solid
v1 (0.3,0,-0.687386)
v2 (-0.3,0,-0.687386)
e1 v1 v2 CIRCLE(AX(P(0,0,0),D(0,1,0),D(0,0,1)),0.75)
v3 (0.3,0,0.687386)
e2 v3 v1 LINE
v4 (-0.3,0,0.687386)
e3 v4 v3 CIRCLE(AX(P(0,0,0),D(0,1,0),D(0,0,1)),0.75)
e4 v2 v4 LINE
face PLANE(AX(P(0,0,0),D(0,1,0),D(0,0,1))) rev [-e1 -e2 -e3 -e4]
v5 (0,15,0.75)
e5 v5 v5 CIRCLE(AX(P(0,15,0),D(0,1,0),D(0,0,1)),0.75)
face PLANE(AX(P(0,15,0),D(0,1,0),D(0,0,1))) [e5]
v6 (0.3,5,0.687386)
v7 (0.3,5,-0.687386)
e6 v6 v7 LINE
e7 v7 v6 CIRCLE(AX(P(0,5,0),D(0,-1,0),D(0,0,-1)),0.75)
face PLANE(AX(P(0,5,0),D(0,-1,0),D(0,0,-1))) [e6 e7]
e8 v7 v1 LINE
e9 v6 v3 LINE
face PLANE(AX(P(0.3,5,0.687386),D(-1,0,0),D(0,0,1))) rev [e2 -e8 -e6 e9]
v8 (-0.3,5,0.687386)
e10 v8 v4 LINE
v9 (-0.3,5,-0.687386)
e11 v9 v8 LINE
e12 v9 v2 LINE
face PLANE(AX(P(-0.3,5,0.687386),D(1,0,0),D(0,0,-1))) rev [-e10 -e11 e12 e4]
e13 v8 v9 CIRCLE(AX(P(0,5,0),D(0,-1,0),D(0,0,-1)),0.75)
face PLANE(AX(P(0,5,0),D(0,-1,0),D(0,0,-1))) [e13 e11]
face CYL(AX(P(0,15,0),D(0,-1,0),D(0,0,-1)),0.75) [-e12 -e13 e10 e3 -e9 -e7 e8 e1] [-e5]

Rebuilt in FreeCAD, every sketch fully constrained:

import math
import FreeCAD as App
import Part
import Sketcher

V = App.Vector

doc = App.newDocument("Part")
params = doc.addObject("Spreadsheet::Sheet", "Params")
for row, (alias, value) in enumerate([
    ("sketch1_diameter", "1.5 mm"),
    ("pad1_length", "15 mm"),
    ("sketch2_radius", "0.75 mm"),
    ("pocket1_length", "5 mm"),
], start=1):
    params.set(f"A{row}", alias)
    params.set(f"B{row}", "=" + value)
    params.setAlias(f"B{row}", alias)

body = doc.addObject("PartDesign::Body", "Body")

# Sketch on XZ plane
sketch1 = body.newObject("Sketcher::SketchObject", "Sketch")
sketch1.AttachmentSupport = (doc.getObject("XZ_Plane"), [""])
sketch1.MapMode = "FlatFace"
sketch1.addGeometry(Part.Circle(V(0, 0, 0), V(0, 0, 1), 0.8), False)
sketch1.addConstraint([
    Sketcher.Constraint("Coincident", 0, 3, -1, 1),
    Sketcher.Constraint("Diameter", 0, 1.5),
])
sketch1.setExpression("Constraints[1]", "Params.sketch1_diameter")
pad1 = body.newObject("PartDesign::Pad", "Pad")
pad1.Profile = sketch1
pad1.setExpression("Length", "Params.pad1_length")
pad1.Reversed = True

# Sketch on XZ plane
sketch2 = body.newObject("Sketcher::SketchObject", "Sketch001")
sketch2.AttachmentSupport = (doc.getObject("XZ_Plane"), [""])
sketch2.MapMode = "FlatFace"
sketch2.addGeometry([
    Part.LineSegment(V(-0.3, -0.7, 0), V(-0.3, 0.7, 0)),
    Part.ArcOfCircle(Part.Circle(V(0, 0, 0), V(0, 0, 1), 0.8), math.radians(114), math.radians(246)),
    Part.LineSegment(V(0.3, 0.7, 0), V(0.3, -0.7, 0)),
    Part.ArcOfCircle(Part.Circle(V(0, 0, 0), V(0, 0, 1), 0.8), math.radians(-66), math.radians(66)),
], False)
sketch2.addConstraint([
    Sketcher.Constraint("Coincident", 0, 1, 1, 2),
    Sketcher.Constraint("Coincident", 1, 1, 0, 2),
    Sketcher.Constraint("Coincident", 2, 1, 3, 2),
    Sketcher.Constraint("Coincident", 3, 1, 2, 2),
    Sketcher.Constraint("Vertical", 0),
    Sketcher.Constraint("Vertical", 2),
    Sketcher.Constraint("Coincident", 1, 3, -1, 1),
    Sketcher.Constraint("Coincident", 3, 3, -1, 1),
    Sketcher.Constraint("Equal", 1, 3),
    Sketcher.Constraint("Horizontal", 1, 1, 2, 1),
    Sketcher.Constraint("Radius", 1, 0.75),
    Sketcher.Constraint("DistanceX", 0, 1, -1, 1, 0.3),
])
sketch2.setExpression("Constraints[10]", "Params.sketch2_radius")
pocket1 = body.newObject("PartDesign::Pocket", "Pocket")
pocket1.Profile = sketch2
pocket1.setExpression("Length", "Params.pocket1_length")

doc.recompute()
